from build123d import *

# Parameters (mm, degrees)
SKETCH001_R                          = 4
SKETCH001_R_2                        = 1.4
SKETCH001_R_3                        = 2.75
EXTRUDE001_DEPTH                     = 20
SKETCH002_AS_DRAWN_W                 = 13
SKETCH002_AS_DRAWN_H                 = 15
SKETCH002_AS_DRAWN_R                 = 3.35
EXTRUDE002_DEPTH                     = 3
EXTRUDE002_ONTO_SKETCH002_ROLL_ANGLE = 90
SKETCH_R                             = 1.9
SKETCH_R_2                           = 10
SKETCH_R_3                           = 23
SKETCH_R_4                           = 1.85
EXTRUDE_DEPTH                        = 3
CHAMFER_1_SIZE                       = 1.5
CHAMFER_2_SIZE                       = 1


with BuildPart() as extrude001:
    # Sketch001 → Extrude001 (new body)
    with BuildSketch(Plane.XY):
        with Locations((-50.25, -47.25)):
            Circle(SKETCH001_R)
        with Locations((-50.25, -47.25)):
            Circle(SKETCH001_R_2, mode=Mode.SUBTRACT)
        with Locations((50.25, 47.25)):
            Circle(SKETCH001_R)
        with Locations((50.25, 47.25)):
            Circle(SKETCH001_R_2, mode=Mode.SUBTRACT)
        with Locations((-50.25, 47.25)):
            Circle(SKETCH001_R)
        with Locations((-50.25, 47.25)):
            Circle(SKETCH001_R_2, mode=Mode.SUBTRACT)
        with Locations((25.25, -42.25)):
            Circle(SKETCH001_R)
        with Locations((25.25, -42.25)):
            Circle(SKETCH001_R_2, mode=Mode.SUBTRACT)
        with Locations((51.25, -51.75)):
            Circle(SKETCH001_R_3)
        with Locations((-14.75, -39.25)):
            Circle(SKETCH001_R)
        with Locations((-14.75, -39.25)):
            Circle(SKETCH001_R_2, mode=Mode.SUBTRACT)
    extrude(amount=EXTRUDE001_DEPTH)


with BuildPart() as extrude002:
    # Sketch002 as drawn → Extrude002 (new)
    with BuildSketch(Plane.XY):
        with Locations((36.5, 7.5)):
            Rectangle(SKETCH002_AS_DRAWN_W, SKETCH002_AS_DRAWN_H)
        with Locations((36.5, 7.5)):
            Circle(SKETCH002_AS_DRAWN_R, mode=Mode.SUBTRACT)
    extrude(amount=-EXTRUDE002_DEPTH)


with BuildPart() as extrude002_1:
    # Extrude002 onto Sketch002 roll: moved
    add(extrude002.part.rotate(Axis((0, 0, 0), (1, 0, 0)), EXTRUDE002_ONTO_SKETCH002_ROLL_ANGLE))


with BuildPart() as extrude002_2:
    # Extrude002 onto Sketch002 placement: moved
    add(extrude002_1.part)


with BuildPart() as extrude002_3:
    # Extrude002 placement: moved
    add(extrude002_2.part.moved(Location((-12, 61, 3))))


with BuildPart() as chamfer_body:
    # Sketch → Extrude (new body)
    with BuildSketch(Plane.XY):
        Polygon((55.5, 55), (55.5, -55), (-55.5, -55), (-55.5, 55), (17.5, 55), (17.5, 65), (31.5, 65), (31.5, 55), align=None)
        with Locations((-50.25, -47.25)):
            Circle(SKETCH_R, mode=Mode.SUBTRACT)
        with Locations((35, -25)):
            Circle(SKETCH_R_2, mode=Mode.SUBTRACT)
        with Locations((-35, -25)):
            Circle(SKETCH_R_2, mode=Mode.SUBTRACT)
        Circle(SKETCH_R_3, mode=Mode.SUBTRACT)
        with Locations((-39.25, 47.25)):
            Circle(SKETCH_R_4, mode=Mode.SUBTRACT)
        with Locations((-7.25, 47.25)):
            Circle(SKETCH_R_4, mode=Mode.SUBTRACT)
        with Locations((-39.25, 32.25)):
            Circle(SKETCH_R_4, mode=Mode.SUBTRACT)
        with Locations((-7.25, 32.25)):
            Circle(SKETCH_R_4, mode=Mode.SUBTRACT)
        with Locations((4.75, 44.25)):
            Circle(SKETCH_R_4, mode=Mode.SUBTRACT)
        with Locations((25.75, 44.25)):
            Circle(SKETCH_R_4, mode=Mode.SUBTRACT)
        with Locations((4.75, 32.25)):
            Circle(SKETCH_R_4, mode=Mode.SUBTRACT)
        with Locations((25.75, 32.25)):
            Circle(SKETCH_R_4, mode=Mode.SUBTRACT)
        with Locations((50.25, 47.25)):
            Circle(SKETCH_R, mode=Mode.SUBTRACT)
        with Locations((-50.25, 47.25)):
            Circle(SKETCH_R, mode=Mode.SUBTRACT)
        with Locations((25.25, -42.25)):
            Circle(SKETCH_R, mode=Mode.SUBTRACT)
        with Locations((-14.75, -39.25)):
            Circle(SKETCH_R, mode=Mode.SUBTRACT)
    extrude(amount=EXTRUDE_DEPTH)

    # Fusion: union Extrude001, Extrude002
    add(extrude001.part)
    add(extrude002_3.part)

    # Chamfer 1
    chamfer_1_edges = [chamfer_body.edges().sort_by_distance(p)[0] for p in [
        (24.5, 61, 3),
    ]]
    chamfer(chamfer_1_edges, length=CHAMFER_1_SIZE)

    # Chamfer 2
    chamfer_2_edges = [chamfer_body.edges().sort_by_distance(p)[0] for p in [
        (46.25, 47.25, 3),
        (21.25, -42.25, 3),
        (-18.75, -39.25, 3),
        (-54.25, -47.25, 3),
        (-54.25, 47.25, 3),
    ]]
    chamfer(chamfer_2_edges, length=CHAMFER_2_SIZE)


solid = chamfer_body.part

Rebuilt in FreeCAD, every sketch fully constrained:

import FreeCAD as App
import Part
import Sketcher
from FreeCAD import Vector


def edges_at(feature, points):
    """Names of the edges that pass closest to the given points."""
    edges = feature.Shape.Edges
    near = lambda p: min(range(len(edges)), key=lambda i: edges[i].distToShape(Part.Vertex(*p))[0])
    return sorted({f"Edge{near(p) + 1}" for p in points})

doc = App.newDocument("Part")
body = doc.addObject("PartDesign::Body", "Body")
body.AllowCompound = True

# Sketch on XY plane
sketch1 = doc.addObject("Sketcher::SketchObject", "Sketch")
body.addObject(sketch1)
sketch1.AttachmentSupport = (doc.XY_Plane, [""])
sketch1.MapMode = "FlatFace"
sketch1.addGeometry(Part.Circle(Vector(-50.2, -47.2, 0), Vector(0, 0, 1), 4), False)
sketch1.addGeometry(Part.Circle(Vector(-50.2, -47.2, 0), Vector(0, 0, 1), 1.4), False)
sketch1.addGeometry(Part.Circle(Vector(50.2, 47.2, 0), Vector(0, 0, 1), 4), False)
sketch1.addGeometry(Part.Circle(Vector(50.2, 47.2, 0), Vector(0, 0, 1), 1.4), False)
sketch1.addGeometry(Part.Circle(Vector(-50.2, 47.2, 0), Vector(0, 0, 1), 4), False)
sketch1.addGeometry(Part.Circle(Vector(-50.2, 47.2, 0), Vector(0, 0, 1), 1.4), False)
sketch1.addGeometry(Part.Circle(Vector(25.2, -42.2, 0), Vector(0, 0, 1), 4), False)
sketch1.addGeometry(Part.Circle(Vector(25.2, -42.2, 0), Vector(0, 0, 1), 1.4), False)
sketch1.addGeometry(Part.Circle(Vector(51.2, -51.8, 0), Vector(0, 0, 1), 2.8), False)
sketch1.addGeometry(Part.Circle(Vector(-14.8, -39.2, 0), Vector(0, 0, 1), 4), False)
sketch1.addGeometry(Part.Circle(Vector(-14.8, -39.2, 0), Vector(0, 0, 1), 1.4), False)
sketch1.addConstraint(Sketcher.Constraint("Coincident", 1, 3, 0, 3))
sketch1.addConstraint(Sketcher.Constraint("Coincident", 3, 3, 2, 3))
sketch1.addConstraint(Sketcher.Constraint("Coincident", 5, 3, 4, 3))
sketch1.addConstraint(Sketcher.Constraint("Coincident", 7, 3, 6, 3))
sketch1.addConstraint(Sketcher.Constraint("Coincident", 10, 3, 9, 3))
sketch1.addConstraint(Sketcher.Constraint("Equal", 0, 2))
sketch1.addConstraint(Sketcher.Constraint("Equal", 1, 3))
sketch1.addConstraint(Sketcher.Constraint("Equal", 2, 4))
sketch1.addConstraint(Sketcher.Constraint("Equal", 3, 5))
sketch1.addConstraint(Sketcher.Constraint("Equal", 4, 6))
sketch1.addConstraint(Sketcher.Constraint("Equal", 5, 7))
sketch1.addConstraint(Sketcher.Constraint("Equal", 6, 9))
sketch1.addConstraint(Sketcher.Constraint("Equal", 7, 10))
sketch1.addConstraint(Sketcher.Constraint("Symmetric", 0, 3, 2, 3, -1, 1))
sketch1.addConstraint(Sketcher.Constraint("Symmetric", 2, 3, 4, 3, -2))
sketch1.addConstraint(Sketcher.Constraint("Diameter", 0, 8.0))
sketch1.addConstraint(Sketcher.Constraint("Diameter", 1, 2.8))
sketch1.addConstraint(Sketcher.Constraint("Diameter", 8, 5.5))
sketch1.addConstraint(Sketcher.Constraint("DistanceY", 0, 3, 6, 3, 5.0))
sketch1.addConstraint(Sketcher.Constraint("DistanceX", 6, 3, 2, 3, 25.0))
sketch1.addConstraint(Sketcher.Constraint("DistanceX", 6, 3, 8, 3, 26.0))
sketch1.addConstraint(Sketcher.Constraint("DistanceY", 8, 3, 2, 3, 99.0))
sketch1.addConstraint(Sketcher.Constraint("DistanceY", 0, 3, 9, 3, 8.0))
sketch1.addConstraint(Sketcher.Constraint("DistanceX", 9, 3, 6, 3, 40.0))
sketch1.addConstraint(Sketcher.Constraint("DistanceX", 0, 3, 2, 3, 100.5))
sketch1.addConstraint(Sketcher.Constraint("DistanceY", 0, 3, 2, 3, 94.5))
pad1 = doc.addObject("PartDesign::Pad", "Pad")
body.addObject(pad1)
pad1.Profile = sketch1
pad1.Length = 20
body2 = doc.addObject("PartDesign::Body", "Body001")

# Sketch on XY plane
sketch2 = doc.addObject("Sketcher::SketchObject", "Sketch001")
body2.addObject(sketch2)
sketch2.AttachmentSupport = (doc.getObject("XY_Plane001"), [""])
sketch2.MapMode = "FlatFace"
sketch2.addGeometry(Part.LineSegment(Vector(30, 15, 0), Vector(30, 0, 0)), False)
sketch2.addGeometry(Part.LineSegment(Vector(30, 0, 0), Vector(43, 0, 0)), False)
sketch2.addGeometry(Part.LineSegment(Vector(43, 0, 0), Vector(43, 15, 0)), False)
sketch2.addGeometry(Part.LineSegment(Vector(43, 15, 0), Vector(30, 15, 0)), False)
sketch2.addGeometry(Part.Circle(Vector(36.5, 7.5, 0), Vector(0, 0, 1), 3.4), False)
sketch2.addConstraint(Sketcher.Constraint("Coincident", 0, 2, 1, 1))
sketch2.addConstraint(Sketcher.Constraint("Coincident", 1, 2, 2, 1))
sketch2.addConstraint(Sketcher.Constraint("Coincident", 2, 2, 3, 1))
sketch2.addConstraint(Sketcher.Constraint("Coincident", 3, 2, 0, 1))
sketch2.addConstraint(Sketcher.Constraint("Vertical", 0))
sketch2.addConstraint(Sketcher.Constraint("Horizontal", 1))
sketch2.addConstraint(Sketcher.Constraint("Vertical", 2))
sketch2.addConstraint(Sketcher.Constraint("Horizontal", 3))
sketch2.addConstraint(Sketcher.Constraint("PointOnObject", 0, 2, -1))
sketch2.addConstraint(Sketcher.Constraint("Diameter", 4, 6.7))
sketch2.addConstraint(Sketcher.Constraint("DistanceX", 1, 1, 1, 2, 13.0))
sketch2.addConstraint(Sketcher.Constraint("DistanceY", 0, 2, 0, 1, 15.0))
sketch2.addConstraint(Sketcher.Constraint("DistanceX", -1, 1, 0, 2, 30.0))
sketch2.addConstraint(Sketcher.Constraint("DistanceX", -1, 1, 4, 3, 36.5))
sketch2.addConstraint(Sketcher.Constraint("DistanceY", -1, 1, 4, 3, 7.5))
pad2 = doc.addObject("PartDesign::Pad", "Pad001")
body2.addObject(pad2)
pad2.Profile = sketch2
pad2.Length = 3
pad2.Reversed = True
body3 = doc.addObject("PartDesign::Body", "Body002")
doc.recompute()

body2.Placement = App.Placement(Vector(0, 0, 0), App.Rotation(Vector(1, 0, 0), 90))
boolean = doc.addObject("PartDesign::Boolean", "Boolean")
body3.addObject(boolean)
boolean.Type = "Fuse"
boolean.addObjects([body2])
body4 = doc.addObject("PartDesign::Body", "Body003")
doc.recompute()

body3.Placement = App.Placement(Vector(-12, 61, 3), App.Rotation(Vector(0, 0, 1), 0))
boolean2 = doc.addObject("PartDesign::Boolean", "Boolean001")
body4.addObject(boolean2)
boolean2.Type = "Fuse"
boolean2.addObjects([body3])
body5 = doc.addObject("PartDesign::Body", "Body004")

# Sketch on XY plane
sketch3 = doc.addObject("Sketcher::SketchObject", "Sketch002")
body5.addObject(sketch3)
sketch3.AttachmentSupport = (doc.getObject("XY_Plane004"), [""])
sketch3.MapMode = "FlatFace"
sketch3.addGeometry(Part.LineSegment(Vector(55.5, -55, 0), Vector(55.5, 55, 0)), False)
sketch3.addGeometry(Part.LineSegment(Vector(55.5, 55, 0), Vector(31.5, 55, 0)), False)
sketch3.addGeometry(Part.LineSegment(Vector(31.5, 55, 0), Vector(31.5, 65, 0)), False)
sketch3.addGeometry(Part.LineSegment(Vector(31.5, 65, 0), Vector(17.5, 65, 0)), False)
sketch3.addGeometry(Part.LineSegment(Vector(17.5, 65, 0), Vector(17.5, 55, 0)), False)
sketch3.addGeometry(Part.LineSegment(Vector(17.5, 55, 0), Vector(-55.5, 55, 0)), False)
sketch3.addGeometry(Part.LineSegment(Vector(-55.5, 55, 0), Vector(-55.5, -55, 0)), False)
sketch3.addGeometry(Part.LineSegment(Vector(-55.5, -55, 0), Vector(55.5, -55, 0)), False)
sketch3.addGeometry(Part.Circle(Vector(35, -25, 0), Vector(0, 0, 1), 10), False)
sketch3.addGeometry(Part.Circle(Vector(25.2, -42.2, 0), Vector(0, 0, 1), 1.9), False)
sketch3.addGeometry(Part.Circle(Vector(-14.8, -39.2, 0), Vector(0, 0, 1), 1.9), False)
sketch3.addGeometry(Part.Circle(Vector(-50.2, -47.2, 0), Vector(0, 0, 1), 1.9), False)
sketch3.addGeometry(Part.Circle(Vector(-35, -25, 0), Vector(0, 0, 1), 10), False)
sketch3.addGeometry(Part.Circle(Vector(50.2, 47.2, 0), Vector(0, 0, 1), 1.9), False)
sketch3.addGeometry(Part.Circle(Vector(25.8, 32.2, 0), Vector(0, 0, 1), 1.9), False)
sketch3.addGeometry(Part.Circle(Vector(4.8, 32.2, 0), Vector(0, 0, 1), 1.9), False)
sketch3.addGeometry(Part.Circle(Vector(25.8, 44.2, 0), Vector(0, 0, 1), 1.9), False)
sketch3.addGeometry(Part.Circle(Vector(4.8, 44.2, 0), Vector(0, 0, 1), 1.9), False)
sketch3.addGeometry(Part.Circle(Vector(0, 0, 0), Vector(0, 0, 1), 23), False)
sketch3.addGeometry(Part.Circle(Vector(-7.2, 32.2, 0), Vector(0, 0, 1), 1.9), False)
sketch3.addGeometry(Part.Circle(Vector(-7.2, 47.2, 0), Vector(0, 0, 1), 1.9), False)
sketch3.addGeometry(Part.Circle(Vector(-39.2, 32.2, 0), Vector(0, 0, 1), 1.9), False)
sketch3.addGeometry(Part.Circle(Vector(-39.2, 47.2, 0), Vector(0, 0, 1), 1.9), False)
sketch3.addGeometry(Part.Circle(Vector(-50.2, 47.2, 0), Vector(0, 0, 1), 1.9), False)
sketch3.addConstraint(Sketcher.Constraint("Coincident", 0, 2, 1, 1))
sketch3.addConstraint(Sketcher.Constraint("Coincident", 1, 2, 2, 1))
sketch3.addConstraint(Sketcher.Constraint("Coincident", 2, 2, 3, 1))
sketch3.addConstraint(Sketcher.Constraint("Coincident", 3, 2, 4, 1))
sketch3.addConstraint(Sketcher.Constraint("Coincident", 4, 2, 5, 1))
sketch3.addConstraint(Sketcher.Constraint("Coincident", 5, 2, 6, 1))
sketch3.addConstraint(Sketcher.Constraint("Coincident", 6, 2, 7, 1))
sketch3.addConstraint(Sketcher.Constraint("Coincident", 7, 2, 0, 1))
sketch3.addConstraint(Sketcher.Constraint("Vertical", 0))
sketch3.addConstraint(Sketcher.Constraint("Horizontal", 1))
sketch3.addConstraint(Sketcher.Constraint("Vertical", 2))
sketch3.addConstraint(Sketcher.Constraint("Horizontal", 3))
sketch3.addConstraint(Sketcher.Constraint("Vertical", 4))
sketch3.addConstraint(Sketcher.Constraint("Horizontal", 5))
sketch3.addConstraint(Sketcher.Constraint("Vertical", 6))
sketch3.addConstraint(Sketcher.Constraint("Horizontal", 7))
sketch3.addConstraint(Sketcher.Constraint("Coincident", 18, 3, -1, 1))
sketch3.addConstraint(Sketcher.Constraint("Equal", 9, 10))
sketch3.addConstraint(Sketcher.Constraint("Equal", 10, 11))
sketch3.addConstraint(Sketcher.Constraint("Equal", 8, 12))
sketch3.addConstraint(Sketcher.Constraint("Equal", 11, 13))
sketch3.addConstraint(Sketcher.Constraint("Equal", 14, 15))
sketch3.addConstraint(Sketcher.Constraint("Equal", 15, 16))
sketch3.addConstraint(Sketcher.Constraint("Equal", 16, 17))
sketch3.addConstraint(Sketcher.Constraint("Equal", 17, 19))
sketch3.addConstraint(Sketcher.Constraint("Equal", 19, 20))
sketch3.addConstraint(Sketcher.Constraint("Equal", 20, 21))
sketch3.addConstraint(Sketcher.Constraint("Equal", 21, 22))
sketch3.addConstraint(Sketcher.Constraint("Equal", 13, 23))
sketch3.addConstraint(Sketcher.Constraint("Symmetric", 11, 3, 13, 3, -1, 1))
sketch3.addConstraint(Sketcher.Constraint("Symmetric", 0, 2, 6, 2, -1, 1))
sketch3.addConstraint(Sketcher.Constraint("Symmetric", 8, 3, 12, 3, -2))
sketch3.addConstraint(Sketcher.Constraint("Symmetric", 13, 3, 23, 3, -2))
sketch3.addConstraint(Sketcher.Constraint("Horizontal", 14, 3, 15, 3))
sketch3.addConstraint(Sketcher.Constraint("Horizontal", 16, 3, 17, 3))
sketch3.addConstraint(Sketcher.Constraint("Horizontal", 15, 3, 19, 3))
sketch3.addConstraint(Sketcher.Constraint("Horizontal", 13, 3, 20, 3))
sketch3.addConstraint(Sketcher.Constraint("Horizontal", 19, 3, 21, 3))
sketch3.addConstraint(Sketcher.Constraint("Horizontal", 20, 3, 22, 3))
sketch3.addConstraint(Sketcher.Constraint("Horizontal", 1, 2, 4, 2))
sketch3.addConstraint(Sketcher.Constraint("Vertical", 14, 3, 16, 3))
sketch3.addConstraint(Sketcher.Constraint("Vertical", 15, 3, 17, 3))
sketch3.addConstraint(Sketcher.Constraint("Vertical", 19, 3, 20, 3))
sketch3.addConstraint(Sketcher.Constraint("Vertical", 21, 3, 22, 3))
sketch3.addConstraint(Sketcher.Constraint("Diameter", 8, 20.0))
sketch3.addConstraint(Sketcher.Constraint("Diameter", 18, 46.0))
sketch3.addConstraint(Sketcher.Constraint("Diameter", 9, 3.8))
sketch3.addConstraint(Sketcher.Constraint("Diameter", 14, 3.7))
sketch3.addConstraint(Sketcher.Constraint("DistanceX", 1, 2, 1, 1, 24.0))
sketch3.addConstraint(Sketcher.Constraint("DistanceX", 3, 2, 3, 1, 14.0))
sketch3.addConstraint(Sketcher.Constraint("DistanceX", 5, 2, 5, 1, 73.0))
sketch3.addConstraint(Sketcher.Constraint("DistanceY", 0, 1, 0, 2, 110.0))
sketch3.addConstraint(Sketcher.Constraint("DistanceY", 2, 1, 2, 2, 10.0))
sketch3.addConstraint(Sketcher.Constraint("DistanceX", -1, 1, 8, 3, 35.0))
sketch3.addConstraint(Sketcher.Constraint("DistanceY", 8, 3, -1, 1, 25.0))
sketch3.addConstraint(Sketcher.Constraint("DistanceX", 10, 3, 9, 3, 40.0))
sketch3.addConstraint(Sketcher.Constraint("DistanceY", 9, 3, 10, 3, 3.0))
sketch3.addConstraint(Sketcher.Constraint("DistanceY", 11, 3, 10, 3, 8.0))
sketch3.addConstraint(Sketcher.Constraint("DistanceX", 9, 3, 13, 3, 25.0))
sketch3.addConstraint(Sketcher.Constraint("DistanceY", 14, 3, 13, 3, 15.0))
sketch3.addConstraint(Sketcher.Constraint("DistanceX", 15, 3, 14, 3, 21.0))
sketch3.addConstraint(Sketcher.Constraint("DistanceY", 14, 3, 16, 3, 12.0))
sketch3.addConstraint(Sketcher.Constraint("DistanceX", 19, 3, 15, 3, 12.0))
sketch3.addConstraint(Sketcher.Constraint("DistanceX", 21, 3, 19, 3, 32.0))
sketch3.addConstraint(Sketcher.Constraint("DistanceX", 23, 3, 22, 3, 11.0))
sketch3.addConstraint(Sketcher.Constraint("DistanceX", 11, 3, 10, 3, 35.5))
sketch3.addConstraint(Sketcher.Constraint("DistanceY", 9, 3, 13, 3, 89.5))
pad3 = doc.addObject("PartDesign::Pad", "Pad002")
body5.addObject(pad3)
pad3.Profile = sketch3
pad3.Length = 3
doc.recompute()

boolean3 = doc.addObject("PartDesign::Boolean", "Boolean002")
body5.addObject(boolean3)
boolean3.Type = "Fuse"
boolean3.addObjects([body])
doc.recompute()

boolean4 = doc.addObject("PartDesign::Boolean", "Boolean003")
body5.addObject(boolean4)
boolean4.Type = "Fuse"
boolean4.addObjects([body4])
doc.recompute()

chamfer = doc.addObject("PartDesign::Chamfer", "Chamfer")
body5.addObject(chamfer)
chamfer.Base = (boolean4, edges_at(boolean4, [(24.5, 61, 3)]))
chamfer.Size = 1.5
doc.recompute()

chamfer2 = doc.addObject("PartDesign::Chamfer", "Chamfer001")
body5.addObject(chamfer2)
chamfer2.Base = (chamfer, edges_at(chamfer, [
    (46.25, 47.25, 3),
    (21.25, -42.25, 3),
    (-18.75, -39.25, 3),
    (-54.25, -47.25, 3),
    (-54.25, 47.25, 3),
]))
chamfer2.Size = 1

doc.recompute()
